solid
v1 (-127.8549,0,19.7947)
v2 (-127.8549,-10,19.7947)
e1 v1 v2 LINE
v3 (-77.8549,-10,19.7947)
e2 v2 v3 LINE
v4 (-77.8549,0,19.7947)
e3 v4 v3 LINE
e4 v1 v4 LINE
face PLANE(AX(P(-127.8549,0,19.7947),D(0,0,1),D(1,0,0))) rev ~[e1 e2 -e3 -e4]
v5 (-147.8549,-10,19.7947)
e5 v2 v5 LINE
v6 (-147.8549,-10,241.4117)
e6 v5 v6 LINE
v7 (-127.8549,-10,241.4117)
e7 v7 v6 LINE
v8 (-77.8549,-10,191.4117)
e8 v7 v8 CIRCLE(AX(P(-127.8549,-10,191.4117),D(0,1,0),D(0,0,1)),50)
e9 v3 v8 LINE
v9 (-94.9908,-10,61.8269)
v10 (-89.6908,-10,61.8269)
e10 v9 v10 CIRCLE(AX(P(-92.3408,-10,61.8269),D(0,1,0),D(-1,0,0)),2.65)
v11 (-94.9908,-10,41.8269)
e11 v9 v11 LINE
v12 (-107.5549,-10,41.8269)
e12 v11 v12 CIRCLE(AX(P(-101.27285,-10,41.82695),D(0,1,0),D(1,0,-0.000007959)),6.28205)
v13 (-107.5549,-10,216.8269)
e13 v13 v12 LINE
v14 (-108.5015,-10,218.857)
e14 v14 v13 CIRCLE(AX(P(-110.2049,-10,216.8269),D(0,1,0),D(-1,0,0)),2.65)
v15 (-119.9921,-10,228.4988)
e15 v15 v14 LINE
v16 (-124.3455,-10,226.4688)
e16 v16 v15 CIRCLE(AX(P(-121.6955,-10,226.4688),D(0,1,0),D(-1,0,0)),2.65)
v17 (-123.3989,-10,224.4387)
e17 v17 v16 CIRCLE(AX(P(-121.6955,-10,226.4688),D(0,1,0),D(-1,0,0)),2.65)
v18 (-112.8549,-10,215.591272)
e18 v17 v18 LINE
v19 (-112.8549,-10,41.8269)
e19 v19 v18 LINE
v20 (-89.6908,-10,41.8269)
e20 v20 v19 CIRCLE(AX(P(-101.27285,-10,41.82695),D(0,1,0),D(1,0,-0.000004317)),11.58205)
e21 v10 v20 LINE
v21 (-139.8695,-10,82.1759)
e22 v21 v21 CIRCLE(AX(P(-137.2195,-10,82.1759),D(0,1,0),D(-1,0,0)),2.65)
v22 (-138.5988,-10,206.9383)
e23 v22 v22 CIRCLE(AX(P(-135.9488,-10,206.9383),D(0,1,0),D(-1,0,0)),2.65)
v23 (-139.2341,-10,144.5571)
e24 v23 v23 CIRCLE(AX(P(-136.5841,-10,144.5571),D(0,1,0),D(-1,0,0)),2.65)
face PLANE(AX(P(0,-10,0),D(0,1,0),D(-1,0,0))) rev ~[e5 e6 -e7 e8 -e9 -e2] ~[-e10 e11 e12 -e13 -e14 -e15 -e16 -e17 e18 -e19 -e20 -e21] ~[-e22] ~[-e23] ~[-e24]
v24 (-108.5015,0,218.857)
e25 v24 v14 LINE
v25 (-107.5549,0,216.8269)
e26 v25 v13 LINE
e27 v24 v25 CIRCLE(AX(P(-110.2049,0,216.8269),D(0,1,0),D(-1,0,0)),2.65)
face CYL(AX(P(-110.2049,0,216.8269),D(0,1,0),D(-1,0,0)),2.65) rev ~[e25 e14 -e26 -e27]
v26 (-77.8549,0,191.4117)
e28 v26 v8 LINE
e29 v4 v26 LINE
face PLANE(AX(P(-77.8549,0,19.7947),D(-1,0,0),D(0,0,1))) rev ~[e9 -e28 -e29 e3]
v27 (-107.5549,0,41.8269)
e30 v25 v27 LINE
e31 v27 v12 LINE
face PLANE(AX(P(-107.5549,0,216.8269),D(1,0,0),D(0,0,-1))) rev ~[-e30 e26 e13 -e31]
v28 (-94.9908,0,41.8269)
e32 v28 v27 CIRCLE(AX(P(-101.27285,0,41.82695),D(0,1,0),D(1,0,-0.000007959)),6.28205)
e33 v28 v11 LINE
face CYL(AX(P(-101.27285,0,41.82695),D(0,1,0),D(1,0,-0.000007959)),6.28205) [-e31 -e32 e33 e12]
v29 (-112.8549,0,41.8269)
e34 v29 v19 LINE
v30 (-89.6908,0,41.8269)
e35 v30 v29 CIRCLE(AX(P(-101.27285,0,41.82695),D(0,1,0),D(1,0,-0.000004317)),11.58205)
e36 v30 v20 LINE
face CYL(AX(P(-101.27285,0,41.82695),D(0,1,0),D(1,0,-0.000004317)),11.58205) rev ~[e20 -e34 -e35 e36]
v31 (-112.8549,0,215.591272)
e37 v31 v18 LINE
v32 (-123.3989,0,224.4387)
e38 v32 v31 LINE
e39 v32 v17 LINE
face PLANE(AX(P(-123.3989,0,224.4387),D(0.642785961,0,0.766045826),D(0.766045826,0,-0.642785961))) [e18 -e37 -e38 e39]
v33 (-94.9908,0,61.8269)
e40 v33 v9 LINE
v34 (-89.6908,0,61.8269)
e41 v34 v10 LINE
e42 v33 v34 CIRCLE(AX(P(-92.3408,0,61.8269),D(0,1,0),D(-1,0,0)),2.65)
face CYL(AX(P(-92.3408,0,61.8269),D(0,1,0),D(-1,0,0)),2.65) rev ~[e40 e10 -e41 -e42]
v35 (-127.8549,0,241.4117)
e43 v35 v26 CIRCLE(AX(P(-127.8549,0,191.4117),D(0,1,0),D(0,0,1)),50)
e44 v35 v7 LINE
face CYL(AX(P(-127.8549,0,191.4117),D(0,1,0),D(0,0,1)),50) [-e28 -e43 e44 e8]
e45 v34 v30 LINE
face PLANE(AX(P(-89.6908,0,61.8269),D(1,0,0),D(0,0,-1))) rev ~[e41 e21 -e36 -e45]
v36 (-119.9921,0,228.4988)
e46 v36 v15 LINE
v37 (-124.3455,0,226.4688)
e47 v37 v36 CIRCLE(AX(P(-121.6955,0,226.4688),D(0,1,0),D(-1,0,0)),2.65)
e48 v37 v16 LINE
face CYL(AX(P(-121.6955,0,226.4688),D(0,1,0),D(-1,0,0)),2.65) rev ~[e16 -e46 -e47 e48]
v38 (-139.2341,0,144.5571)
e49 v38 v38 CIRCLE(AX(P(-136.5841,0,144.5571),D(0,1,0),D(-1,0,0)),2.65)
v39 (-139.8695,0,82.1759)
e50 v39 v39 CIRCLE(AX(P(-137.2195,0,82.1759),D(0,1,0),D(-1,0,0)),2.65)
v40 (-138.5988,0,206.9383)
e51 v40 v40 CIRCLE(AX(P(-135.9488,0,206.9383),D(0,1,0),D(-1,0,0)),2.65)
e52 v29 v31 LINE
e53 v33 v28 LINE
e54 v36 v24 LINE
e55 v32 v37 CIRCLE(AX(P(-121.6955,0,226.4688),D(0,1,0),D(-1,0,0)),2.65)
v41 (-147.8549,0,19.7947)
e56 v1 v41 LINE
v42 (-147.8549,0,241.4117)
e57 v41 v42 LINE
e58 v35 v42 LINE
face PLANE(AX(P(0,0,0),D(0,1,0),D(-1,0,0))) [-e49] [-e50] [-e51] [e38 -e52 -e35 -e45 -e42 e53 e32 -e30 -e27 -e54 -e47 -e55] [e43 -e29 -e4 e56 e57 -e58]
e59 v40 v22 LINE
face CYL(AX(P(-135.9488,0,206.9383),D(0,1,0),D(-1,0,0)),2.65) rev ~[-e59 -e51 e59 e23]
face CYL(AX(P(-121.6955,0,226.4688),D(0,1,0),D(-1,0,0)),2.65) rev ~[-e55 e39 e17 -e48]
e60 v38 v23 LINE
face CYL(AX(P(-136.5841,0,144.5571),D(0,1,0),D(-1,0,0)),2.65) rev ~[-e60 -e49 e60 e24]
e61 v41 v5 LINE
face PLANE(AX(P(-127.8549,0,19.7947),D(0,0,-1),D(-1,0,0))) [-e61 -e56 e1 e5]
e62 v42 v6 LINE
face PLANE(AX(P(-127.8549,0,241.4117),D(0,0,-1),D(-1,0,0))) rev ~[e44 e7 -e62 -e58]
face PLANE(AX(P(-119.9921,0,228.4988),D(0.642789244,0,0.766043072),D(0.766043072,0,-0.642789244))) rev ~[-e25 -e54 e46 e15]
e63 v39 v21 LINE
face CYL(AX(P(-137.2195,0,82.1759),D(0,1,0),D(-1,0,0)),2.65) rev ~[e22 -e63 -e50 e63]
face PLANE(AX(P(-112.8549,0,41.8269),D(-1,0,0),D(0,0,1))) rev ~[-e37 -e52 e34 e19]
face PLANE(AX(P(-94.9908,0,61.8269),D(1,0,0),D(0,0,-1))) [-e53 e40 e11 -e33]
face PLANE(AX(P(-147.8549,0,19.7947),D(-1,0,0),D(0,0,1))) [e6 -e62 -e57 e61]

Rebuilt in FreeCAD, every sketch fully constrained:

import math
import FreeCAD as App
import Part
import Sketcher
Q = App.Units.Quantity

doc = App.newDocument("Part")
body = doc.addObject("PartDesign::Body", "Body")

# Sketch on XZ plane
sketch1 = body.newObject("Sketcher::SketchObject", "Sketch")
sketch1.AttachmentSupport = (doc.getObject("XZ_Plane"), [""])
sketch1.MapMode = "FlatFace"
sketch1.addGeometry(Part.LineSegment(App.Vector(-77.9, 19.8, 0), App.Vector(-147.9, 19.8, 0)), False)
sketch1.addGeometry(Part.LineSegment(App.Vector(-147.9, 19.8, 0), App.Vector(-147.9, 241.4, 0)), False)
sketch1.addGeometry(Part.LineSegment(App.Vector(-147.9, 241.4, 0), App.Vector(-127.9, 241.4, 0)), False)
sketch1.addGeometry(Part.ArcOfCircle(Part.Circle(App.Vector(-127.9, 191.4, 0), App.Vector(0, 0, 1), 50), math.radians(0), math.radians(90)), False)
sketch1.addGeometry(Part.LineSegment(App.Vector(-77.9, 191.4, 0), App.Vector(-77.9, 19.8, 0)), False)
sketch1.addGeometry(Part.ArcOfCircle(Part.Circle(App.Vector(-121.7, 226.5, 0), App.Vector(0, 0, 1), 2.6), math.radians(50), math.radians(230)), False)
sketch1.addGeometry(Part.LineSegment(App.Vector(-123.4, 224.4, 0), App.Vector(-112.9, 215.6, 0)), False)
sketch1.addGeometry(Part.LineSegment(App.Vector(-112.9, 215.6, 0), App.Vector(-112.9, 41.8, 0)), False)
sketch1.addGeometry(Part.ArcOfCircle(Part.Circle(App.Vector(-101.3, 41.8, 0), App.Vector(0, 0, 1), 11.6), math.radians(180), math.radians(360)), False)
sketch1.addGeometry(Part.LineSegment(App.Vector(-89.7, 41.8, 0), App.Vector(-89.7, 61.8, 0)), False)
sketch1.addGeometry(Part.ArcOfCircle(Part.Circle(App.Vector(-92.3, 61.8, 0), App.Vector(0, 0, 1), 2.6), math.radians(0), math.radians(180)), False)
sketch1.addGeometry(Part.LineSegment(App.Vector(-95, 61.8, 0), App.Vector(-95, 41.8, 0)), False)
sketch1.addGeometry(Part.ArcOfCircle(Part.Circle(App.Vector(-101.3, 41.8, 0), App.Vector(0, 0, 1), 6.3), math.radians(180), math.radians(360)), False)
sketch1.addGeometry(Part.LineSegment(App.Vector(-107.6, 41.8, 0), App.Vector(-107.6, 216.8, 0)), False)
sketch1.addGeometry(Part.ArcOfCircle(Part.Circle(App.Vector(-110.2, 216.8, 0), App.Vector(0, 0, 1), 2.6), math.radians(0), math.radians(50)), False)
sketch1.addGeometry(Part.LineSegment(App.Vector(-108.5, 218.9, 0), App.Vector(-120, 228.5, 0)), False)
sketch1.addGeometry(Part.Circle(App.Vector(-137.2, 82.2, 0), App.Vector(0, 0, 1), 2.6), False)
sketch1.addGeometry(Part.Circle(App.Vector(-136.6, 144.6, 0), App.Vector(0, 0, 1), 2.6), False)
sketch1.addGeometry(Part.Circle(App.Vector(-135.9, 206.9, 0), App.Vector(0, 0, 1), 2.6), False)
sketch1.addConstraint(Sketcher.Constraint("Coincident", 0, 2, 1, 1))
sketch1.addConstraint(Sketcher.Constraint("Coincident", 1, 2, 2, 1))
sketch1.addConstraint(Sketcher.Constraint("Tangent", 2, 2, 3, 2))
sketch1.addConstraint(Sketcher.Constraint("Tangent", 3, 1, 4, 1))
sketch1.addConstraint(Sketcher.Constraint("Coincident", 4, 2, 0, 1))
sketch1.addConstraint(Sketcher.Constraint("Tangent", 5, 2, 6, 1))
sketch1.addConstraint(Sketcher.Constraint("Coincident", 6, 2, 7, 1))
sketch1.addConstraint(Sketcher.Constraint("Tangent", 7, 2, 8, 1))
sketch1.addConstraint(Sketcher.Constraint("Tangent", 8, 2, 9, 1))
sketch1.addConstraint(Sketcher.Constraint("Tangent", 9, 2, 10, 1))
sketch1.addConstraint(Sketcher.Constraint("Tangent", 10, 2, 11, 1))
sketch1.addConstraint(Sketcher.Constraint("Tangent", 11, 2, 12, 2))
sketch1.addConstraint(Sketcher.Constraint("Tangent", 12, 1, 13, 1))
sketch1.addConstraint(Sketcher.Constraint("Tangent", 13, 2, 14, 1))
sketch1.addConstraint(Sketcher.Constraint("Tangent", 14, 2, 15, 1))
sketch1.addConstraint(Sketcher.Constraint("Tangent", 15, 2, 5, 1))
sketch1.addConstraint(Sketcher.Constraint("Horizontal", 0))
sketch1.addConstraint(Sketcher.Constraint("Vertical", 1))
sketch1.addConstraint(Sketcher.Constraint("Horizontal", 2))
sketch1.addConstraint(Sketcher.Constraint("Vertical", 4))
sketch1.addConstraint(Sketcher.Constraint("Vertical", 7))
sketch1.addConstraint(Sketcher.Constraint("Vertical", 9))
sketch1.addConstraint(Sketcher.Constraint("Vertical", 11))
sketch1.addConstraint(Sketcher.Constraint("Vertical", 13))
sketch1.addConstraint(Sketcher.Constraint("Coincident", 12, 3, 8, 3))
sketch1.addConstraint(Sketcher.Constraint("Equal", 5, 10))
sketch1.addConstraint(Sketcher.Constraint("Equal", 10, 14))
sketch1.addConstraint(Sketcher.Constraint("Equal", 14, 16))
sketch1.addConstraint(Sketcher.Constraint("Equal", 16, 17))
sketch1.addConstraint(Sketcher.Constraint("Equal", 17, 18))
sketch1.addConstraint(Sketcher.Constraint("Parallel", 6, 15))
sketch1.addConstraint(Sketcher.Constraint("Equal", 2, 9))
sketch1.addConstraint(Sketcher.Constraint("Radius", 3, Q("50 mm")))
sketch1.addConstraint(Sketcher.Constraint("Diameter", 16, Q("5.3 mm")))
sketch1.addConstraint(Sketcher.Constraint("DistanceX", 2, 1, 2, 2, Q("20 mm")))
sketch1.addConstraint(Sketcher.Constraint("DistanceY", 13, 1, 13, 2, Q("175 mm")))
sketch1.addConstraint(Sketcher.Constraint("Distance", 15, Q("15 mm")))
sketch1.addConstraint(Sketcher.Constraint("DistanceX", 3, 3, 6, 2, Q("15 mm")))
sketch1.addConstraint(Sketcher.Constraint("Angle", 6, Q("-39.9999 deg")))
sketch1.addConstraint(Sketcher.Constraint("Radius", 8, Q("11.582 mm")))
sketch1.addConstraint(Sketcher.Constraint("DistanceY", 1, 1, 1, 2, Q("221.617 mm")))
sketch1.addConstraint(Sketcher.Constraint("DistanceX", 18, 3, 5, 2, Q("12.55 mm")))
sketch1.addConstraint(Sketcher.Constraint("DistanceX", 3, 3, -1, 1, Q("127.855 mm")))
sketch1.addConstraint(Sketcher.Constraint("DistanceY", -1, 1, 8, 3, Q("41.827 mm")))
sketch1.addConstraint(Sketcher.Constraint("DistanceY", -1, 1, 16, 3, Q("82.176 mm")))
sketch1.addConstraint(Sketcher.Constraint("DistanceX", 17, 3, -1, 1, Q("136.584 mm")))
sketch1.addConstraint(Sketcher.Constraint("DistanceY", -1, 1, 17, 3, Q("144.557 mm")))
sketch1.addConstraint(Sketcher.Constraint("DistanceY", 3, 3, 5, 3, Q("35.057 mm")))
sketch1.addConstraint(Sketcher.Constraint("DistanceY", 18, 3, 6, 2, Q("8.653 mm")))
sketch1.addConstraint(Sketcher.Constraint("DistanceX", 16, 3, -1, 1, Q("137.2195 mm")))
pad1 = body.newObject("PartDesign::Pad", "Pad")
pad1.Profile = sketch1
pad1.Length = 10

doc.recompute()
